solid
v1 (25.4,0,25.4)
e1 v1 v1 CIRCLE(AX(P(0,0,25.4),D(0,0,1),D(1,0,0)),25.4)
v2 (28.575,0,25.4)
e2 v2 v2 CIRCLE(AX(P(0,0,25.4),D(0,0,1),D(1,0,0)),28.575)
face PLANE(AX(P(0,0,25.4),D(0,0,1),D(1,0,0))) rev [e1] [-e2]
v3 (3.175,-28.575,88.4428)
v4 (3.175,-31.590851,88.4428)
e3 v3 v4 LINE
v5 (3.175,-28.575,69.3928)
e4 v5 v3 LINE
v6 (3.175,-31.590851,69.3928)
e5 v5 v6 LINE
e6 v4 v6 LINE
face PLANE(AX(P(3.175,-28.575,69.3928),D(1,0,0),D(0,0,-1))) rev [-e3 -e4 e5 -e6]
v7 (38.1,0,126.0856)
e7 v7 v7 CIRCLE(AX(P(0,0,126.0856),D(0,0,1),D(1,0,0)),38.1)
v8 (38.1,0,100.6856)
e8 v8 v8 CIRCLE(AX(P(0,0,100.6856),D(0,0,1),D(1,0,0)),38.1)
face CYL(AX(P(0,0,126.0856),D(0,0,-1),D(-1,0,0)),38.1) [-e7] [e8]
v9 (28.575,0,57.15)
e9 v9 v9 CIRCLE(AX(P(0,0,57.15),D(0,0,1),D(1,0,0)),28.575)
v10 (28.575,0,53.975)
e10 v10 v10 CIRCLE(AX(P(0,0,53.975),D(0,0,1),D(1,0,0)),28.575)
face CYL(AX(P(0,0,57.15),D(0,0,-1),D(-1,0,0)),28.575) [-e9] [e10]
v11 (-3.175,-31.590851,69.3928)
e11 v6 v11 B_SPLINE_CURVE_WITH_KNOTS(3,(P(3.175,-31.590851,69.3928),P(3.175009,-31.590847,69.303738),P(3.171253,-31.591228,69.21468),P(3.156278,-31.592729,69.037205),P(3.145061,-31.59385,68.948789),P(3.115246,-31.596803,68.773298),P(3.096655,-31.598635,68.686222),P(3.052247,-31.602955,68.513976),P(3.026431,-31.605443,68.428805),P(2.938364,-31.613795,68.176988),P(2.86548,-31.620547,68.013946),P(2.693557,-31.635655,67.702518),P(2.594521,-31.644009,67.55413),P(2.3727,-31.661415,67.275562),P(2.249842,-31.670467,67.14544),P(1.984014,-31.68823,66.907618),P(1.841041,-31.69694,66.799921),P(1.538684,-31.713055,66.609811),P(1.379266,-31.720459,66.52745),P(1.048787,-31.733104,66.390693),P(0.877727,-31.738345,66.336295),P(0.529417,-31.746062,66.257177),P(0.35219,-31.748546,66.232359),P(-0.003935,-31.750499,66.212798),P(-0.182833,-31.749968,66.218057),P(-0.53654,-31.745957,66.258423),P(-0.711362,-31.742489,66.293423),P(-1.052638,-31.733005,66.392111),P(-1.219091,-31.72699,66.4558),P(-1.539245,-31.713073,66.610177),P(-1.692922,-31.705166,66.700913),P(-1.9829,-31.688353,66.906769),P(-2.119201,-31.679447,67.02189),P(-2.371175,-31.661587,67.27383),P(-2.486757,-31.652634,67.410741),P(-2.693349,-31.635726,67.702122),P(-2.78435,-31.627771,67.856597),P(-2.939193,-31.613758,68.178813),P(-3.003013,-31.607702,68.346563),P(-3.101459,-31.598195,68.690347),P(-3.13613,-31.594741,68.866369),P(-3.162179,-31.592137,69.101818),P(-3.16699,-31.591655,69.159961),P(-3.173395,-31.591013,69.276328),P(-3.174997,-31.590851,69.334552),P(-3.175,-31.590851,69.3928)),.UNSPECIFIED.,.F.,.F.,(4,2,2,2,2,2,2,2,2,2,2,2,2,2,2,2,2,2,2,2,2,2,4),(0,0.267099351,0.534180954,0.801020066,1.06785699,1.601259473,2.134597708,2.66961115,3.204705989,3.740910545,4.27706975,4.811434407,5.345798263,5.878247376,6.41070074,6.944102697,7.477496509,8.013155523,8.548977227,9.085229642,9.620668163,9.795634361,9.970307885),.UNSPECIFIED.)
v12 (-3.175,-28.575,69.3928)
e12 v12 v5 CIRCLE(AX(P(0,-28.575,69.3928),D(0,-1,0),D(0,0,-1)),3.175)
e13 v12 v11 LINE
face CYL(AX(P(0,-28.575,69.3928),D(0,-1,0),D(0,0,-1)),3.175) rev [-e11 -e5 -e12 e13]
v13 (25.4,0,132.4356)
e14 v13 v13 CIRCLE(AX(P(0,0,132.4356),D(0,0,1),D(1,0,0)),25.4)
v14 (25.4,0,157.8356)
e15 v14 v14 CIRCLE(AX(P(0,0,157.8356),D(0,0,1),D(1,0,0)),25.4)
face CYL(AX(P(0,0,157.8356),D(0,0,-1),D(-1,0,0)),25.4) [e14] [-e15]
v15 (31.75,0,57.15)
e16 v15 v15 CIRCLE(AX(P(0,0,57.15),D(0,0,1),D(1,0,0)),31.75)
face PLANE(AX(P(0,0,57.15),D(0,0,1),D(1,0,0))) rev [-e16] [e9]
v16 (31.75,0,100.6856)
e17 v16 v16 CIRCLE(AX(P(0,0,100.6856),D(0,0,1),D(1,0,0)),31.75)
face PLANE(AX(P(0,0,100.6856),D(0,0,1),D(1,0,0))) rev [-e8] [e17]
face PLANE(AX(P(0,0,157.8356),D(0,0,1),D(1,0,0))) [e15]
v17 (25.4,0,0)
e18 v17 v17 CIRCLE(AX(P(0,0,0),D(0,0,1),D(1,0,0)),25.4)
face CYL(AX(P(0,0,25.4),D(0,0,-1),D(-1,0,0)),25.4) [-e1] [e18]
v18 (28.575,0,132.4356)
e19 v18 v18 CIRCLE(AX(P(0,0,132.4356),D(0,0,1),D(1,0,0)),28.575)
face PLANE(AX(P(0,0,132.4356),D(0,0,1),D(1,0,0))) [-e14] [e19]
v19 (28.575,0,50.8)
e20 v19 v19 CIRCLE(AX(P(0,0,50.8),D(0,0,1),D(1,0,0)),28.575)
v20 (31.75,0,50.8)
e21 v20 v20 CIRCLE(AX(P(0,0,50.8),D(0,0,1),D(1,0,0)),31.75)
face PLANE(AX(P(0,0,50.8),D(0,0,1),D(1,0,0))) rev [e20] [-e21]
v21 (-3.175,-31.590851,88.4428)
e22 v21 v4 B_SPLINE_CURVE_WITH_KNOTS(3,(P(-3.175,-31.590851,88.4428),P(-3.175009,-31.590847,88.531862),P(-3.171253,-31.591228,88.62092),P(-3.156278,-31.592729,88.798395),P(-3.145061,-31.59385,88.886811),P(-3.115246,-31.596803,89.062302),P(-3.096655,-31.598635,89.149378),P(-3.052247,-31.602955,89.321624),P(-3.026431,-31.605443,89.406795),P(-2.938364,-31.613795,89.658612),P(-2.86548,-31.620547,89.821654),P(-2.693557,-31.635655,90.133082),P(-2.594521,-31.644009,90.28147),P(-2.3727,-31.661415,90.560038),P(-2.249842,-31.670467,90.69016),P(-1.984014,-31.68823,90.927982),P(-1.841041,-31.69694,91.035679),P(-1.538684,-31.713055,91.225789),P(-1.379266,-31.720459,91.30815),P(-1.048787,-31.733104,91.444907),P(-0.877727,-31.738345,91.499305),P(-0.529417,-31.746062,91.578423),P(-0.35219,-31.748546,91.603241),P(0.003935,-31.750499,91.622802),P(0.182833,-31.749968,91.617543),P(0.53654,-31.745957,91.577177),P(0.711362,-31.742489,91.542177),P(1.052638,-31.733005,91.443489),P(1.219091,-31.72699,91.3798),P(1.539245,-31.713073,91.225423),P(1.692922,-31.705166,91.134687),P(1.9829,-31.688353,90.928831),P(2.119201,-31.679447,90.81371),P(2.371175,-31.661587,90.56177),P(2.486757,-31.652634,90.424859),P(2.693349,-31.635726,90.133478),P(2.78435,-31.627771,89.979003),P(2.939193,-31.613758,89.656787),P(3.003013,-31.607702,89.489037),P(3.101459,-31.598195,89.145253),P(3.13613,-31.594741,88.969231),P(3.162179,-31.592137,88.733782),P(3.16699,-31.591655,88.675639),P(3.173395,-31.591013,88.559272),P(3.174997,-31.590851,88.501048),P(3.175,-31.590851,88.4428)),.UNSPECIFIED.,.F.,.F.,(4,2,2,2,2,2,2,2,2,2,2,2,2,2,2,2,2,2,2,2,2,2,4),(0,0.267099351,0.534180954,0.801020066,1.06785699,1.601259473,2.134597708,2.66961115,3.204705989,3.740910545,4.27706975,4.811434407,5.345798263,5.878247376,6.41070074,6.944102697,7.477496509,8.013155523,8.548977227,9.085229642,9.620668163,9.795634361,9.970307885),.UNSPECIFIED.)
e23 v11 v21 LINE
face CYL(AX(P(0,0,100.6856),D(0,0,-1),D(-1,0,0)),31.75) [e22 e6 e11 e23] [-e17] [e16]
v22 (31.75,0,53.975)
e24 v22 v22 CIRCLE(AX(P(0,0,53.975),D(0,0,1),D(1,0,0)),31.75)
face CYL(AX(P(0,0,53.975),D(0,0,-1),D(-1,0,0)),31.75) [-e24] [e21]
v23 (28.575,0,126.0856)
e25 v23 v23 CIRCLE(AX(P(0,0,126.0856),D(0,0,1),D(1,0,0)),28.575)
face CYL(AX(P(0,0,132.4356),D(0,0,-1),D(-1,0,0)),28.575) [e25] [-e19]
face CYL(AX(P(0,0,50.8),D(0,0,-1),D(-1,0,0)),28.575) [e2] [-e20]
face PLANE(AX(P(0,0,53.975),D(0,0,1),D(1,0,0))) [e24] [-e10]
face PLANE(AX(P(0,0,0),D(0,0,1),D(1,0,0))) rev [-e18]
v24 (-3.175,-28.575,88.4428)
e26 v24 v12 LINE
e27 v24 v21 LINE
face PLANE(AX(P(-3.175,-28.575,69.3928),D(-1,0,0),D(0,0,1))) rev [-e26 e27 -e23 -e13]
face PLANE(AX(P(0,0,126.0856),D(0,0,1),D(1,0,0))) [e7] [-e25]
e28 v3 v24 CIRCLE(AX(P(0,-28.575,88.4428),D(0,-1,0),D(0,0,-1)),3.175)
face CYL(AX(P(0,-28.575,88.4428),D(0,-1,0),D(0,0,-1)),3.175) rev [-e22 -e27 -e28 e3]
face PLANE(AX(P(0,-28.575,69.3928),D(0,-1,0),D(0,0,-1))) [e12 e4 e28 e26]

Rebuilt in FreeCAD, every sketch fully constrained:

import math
import FreeCAD as App
import Part
import Sketcher
from FreeCAD import Vector
Q = App.Units.Quantity

doc = App.newDocument("Part")
params = doc.addObject("Spreadsheet::Sheet", "Params")
for row, (alias, value) in enumerate([
    ("sketch1_diameter", "2 in"),
    ("pad1_length", "1 in"),
    ("sketch2_diameter", "2.25 in"),
    ("pad2_length", "1 in"),
    ("sketch3_diameter", "2.5 in"),
    ("pad3_length", "0.125 in"),
    ("sketch4_diameter", "2.25 in"),
    ("pad4_length", "0.125 in"),
    ("sketch5_diameter", "2.5 in"),
    ("pad5_length", "1.714 in"),
    ("sketch6_diameter", "3 in"),
    ("pad6_length", "1 in"),
    ("sketch7_diameter", "2.25 in"),
    ("pad7_length", "0.25 in"),
    ("sketch8_diameter", "2 in"),
    ("pad8_length", "1 in"),
    ("sketch9_radius", "0.125 in"),
    ("sketch9_height", "0.75 in"),
    ("pocket1_length", "0.125 in"),
], start=1):
    params.set(f"A{row}", alias)
    params.set(f"B{row}", "=" + value)
    params.setAlias(f"B{row}", alias)

body = doc.addObject("PartDesign::Body", "Body")

sketch1 = body.newObject("Sketcher::SketchObject", "Sketch")
sketch1.AttachmentSupport = (doc.getObject("XY_Plane"), [""])
sketch1.MapMode = "FlatFace"
sketch1.addGeometry(Part.Circle(Vector(0, 0, 0), Vector(0, 0, 1), 25), False)
sketch1.addConstraint([
    Sketcher.Constraint("Coincident", 0, 3, -1, 1),
    Sketcher.Constraint("Diameter", 0, Q("2 in")),
])
sketch1.setExpression("Constraints[1]", "Params.sketch1_diameter")
pad1 = body.newObject("PartDesign::Pad", "Pad")
pad1.Profile = sketch1
pad1.setExpression("Length", "Params.pad1_length")

sketch2 = body.newObject("Sketcher::SketchObject", "Sketch001")
sketch2.AttachmentSupport = (doc.getObject("XY_Plane"), [""])
sketch2.MapMode = "FlatFace"
sketch2.AttachmentOffset = App.Placement(Vector(0, 0, 1 * 25.4), App.Rotation())
sketch2.addGeometry(Part.Circle(Vector(0, 0, 0), Vector(0, 0, 1), 29), False)
sketch2.addConstraint([
    Sketcher.Constraint("Coincident", 0, 3, -1, 1),
    Sketcher.Constraint("Diameter", 0, Q("2.25 in")),
])
sketch2.setExpression("Constraints[1]", "Params.sketch2_diameter")
pad2 = body.newObject("PartDesign::Pad", "Pad001")
pad2.Profile = sketch2
pad2.setExpression("Length", "Params.pad2_length")

sketch3 = body.newObject("Sketcher::SketchObject", "Sketch002")
sketch3.AttachmentSupport = (doc.getObject("XY_Plane"), [""])
sketch3.MapMode = "FlatFace"
sketch3.AttachmentOffset = App.Placement(Vector(0, 0, 2 * 25.4), App.Rotation())
sketch3.addGeometry(Part.Circle(Vector(0, 0, 0), Vector(0, 0, 1), 32), False)
sketch3.addConstraint([
    Sketcher.Constraint("Coincident", 0, 3, -1, 1),
    Sketcher.Constraint("Diameter", 0, Q("2.5 in")),
])
sketch3.setExpression("Constraints[1]", "Params.sketch3_diameter")
pad3 = body.newObject("PartDesign::Pad", "Pad002")
pad3.Profile = sketch3
pad3.setExpression("Length", "Params.pad3_length")

sketch4 = body.newObject("Sketcher::SketchObject", "Sketch003")
sketch4.AttachmentSupport = (doc.getObject("XY_Plane"), [""])
sketch4.MapMode = "FlatFace"
sketch4.AttachmentOffset = App.Placement(Vector(0, 0, 2.125 * 25.4), App.Rotation())
sketch4.addGeometry(Part.Circle(Vector(0, 0, 0), Vector(0, 0, 1), 29), False)
sketch4.addConstraint([
    Sketcher.Constraint("Coincident", 0, 3, -1, 1),
    Sketcher.Constraint("Diameter", 0, Q("2.25 in")),
])
sketch4.setExpression("Constraints[1]", "Params.sketch4_diameter")
pad4 = body.newObject("PartDesign::Pad", "Pad003")
pad4.Profile = sketch4
pad4.setExpression("Length", "Params.pad4_length")

sketch5 = body.newObject("Sketcher::SketchObject", "Sketch004")
sketch5.AttachmentSupport = (doc.getObject("XY_Plane"), [""])
sketch5.MapMode = "FlatFace"
sketch5.AttachmentOffset = App.Placement(Vector(0, 0, 2.25 * 25.4), App.Rotation())
sketch5.addGeometry(Part.Circle(Vector(0, 0, 0), Vector(0, 0, 1), 32), False)
sketch5.addConstraint([
    Sketcher.Constraint("Coincident", 0, 3, -1, 1),
    Sketcher.Constraint("Diameter", 0, Q("2.5 in")),
])
sketch5.setExpression("Constraints[1]", "Params.sketch5_diameter")
pad5 = body.newObject("PartDesign::Pad", "Pad004")
pad5.Profile = sketch5
pad5.setExpression("Length", "Params.pad5_length")

sketch6 = body.newObject("Sketcher::SketchObject", "Sketch005")
sketch6.AttachmentSupport = (doc.getObject("XY_Plane"), [""])
sketch6.MapMode = "FlatFace"
sketch6.AttachmentOffset = App.Placement(Vector(0, 0, 3.964 * 25.4), App.Rotation())
sketch6.addGeometry(Part.Circle(Vector(0, 0, 0), Vector(0, 0, 1), 38), False)
sketch6.addConstraint([
    Sketcher.Constraint("Coincident", 0, 3, -1, 1),
    Sketcher.Constraint("Diameter", 0, Q("3 in")),
])
sketch6.setExpression("Constraints[1]", "Params.sketch6_diameter")
pad6 = body.newObject("PartDesign::Pad", "Pad005")
pad6.Profile = sketch6
pad6.setExpression("Length", "Params.pad6_length")

sketch7 = body.newObject("Sketcher::SketchObject", "Sketch006")
sketch7.AttachmentSupport = (doc.getObject("XY_Plane"), [""])
sketch7.MapMode = "FlatFace"
sketch7.AttachmentOffset = App.Placement(Vector(0, 0, 4.964 * 25.4), App.Rotation())
sketch7.addGeometry(Part.Circle(Vector(0, 0, 0), Vector(0, 0, 1), 29), False)
sketch7.addConstraint([
    Sketcher.Constraint("Coincident", 0, 3, -1, 1),
    Sketcher.Constraint("Diameter", 0, Q("2.25 in")),
])
sketch7.setExpression("Constraints[1]", "Params.sketch7_diameter")
pad7 = body.newObject("PartDesign::Pad", "Pad006")
pad7.Profile = sketch7
pad7.setExpression("Length", "Params.pad7_length")

sketch8 = body.newObject("Sketcher::SketchObject", "Sketch007")
sketch8.AttachmentSupport = (doc.getObject("XY_Plane"), [""])
sketch8.MapMode = "FlatFace"
sketch8.AttachmentOffset = App.Placement(Vector(0, 0, 5.214 * 25.4), App.Rotation())
sketch8.addGeometry(Part.Circle(Vector(0, 0, 0), Vector(0, 0, 1), 25), False)
sketch8.addConstraint([
    Sketcher.Constraint("Coincident", 0, 3, -1, 1),
    Sketcher.Constraint("Diameter", 0, Q("2 in")),
])
sketch8.setExpression("Constraints[1]", "Params.sketch8_diameter")
pad8 = body.newObject("PartDesign::Pad", "Pad007")
pad8.Profile = sketch8
pad8.setExpression("Length", "Params.pad8_length")

sketch9 = body.newObject("Sketcher::SketchObject", "Sketch008")
sketch9.AttachmentSupport = (doc.getObject("XZ_Plane"), [""])
sketch9.MapMode = "FlatFace"
sketch9.AttachmentOffset = App.Placement(Vector(0, 0, 1.25 * 25.4), App.Rotation())
sketch9.addGeometry([
    Part.LineSegment(Vector(-3.2, 88.4, 0), Vector(-3.2, 69.4, 0)),
    Part.ArcOfCircle(Part.Circle(Vector(0, 69.4, 0), Vector(0, 0, 1), 3.2), math.radians(180), math.radians(360)),
    Part.LineSegment(Vector(3.2, 69.4, 0), Vector(3.2, 88.4, 0)),
    Part.ArcOfCircle(Part.Circle(Vector(0, 88.4, 0), Vector(0, 0, 1), 3.2), math.radians(0), math.radians(180)),
], False)
sketch9.addConstraint([
    Sketcher.Constraint("Tangent", 0, 2, 1, 1),
    Sketcher.Constraint("Tangent", 1, 2, 2, 1),
    Sketcher.Constraint("Tangent", 2, 2, 3, 1),
    Sketcher.Constraint("Tangent", 3, 2, 0, 1),
    Sketcher.Constraint("Vertical", 0),
    Sketcher.Constraint("Vertical", 2),
    Sketcher.Constraint("PointOnObject", 1, 3, -2),
    Sketcher.Constraint("Radius", 1, Q("0.125 in")),
    Sketcher.Constraint("DistanceY", 0, 2, 0, 1, Q("0.75 in")),
    Sketcher.Constraint("DistanceY", -1, 1, 1, 3, Q("2.732 in")),
])
sketch9.setExpression("Constraints[7]", "Params.sketch9_radius")
sketch9.setExpression("Constraints[8]", "Params.sketch9_height")
pocket1 = body.newObject("PartDesign::Pocket", "Pocket")
pocket1.Profile = sketch9
pocket1.setExpression("Length", "Params.pocket1_length")

doc.recompute()
